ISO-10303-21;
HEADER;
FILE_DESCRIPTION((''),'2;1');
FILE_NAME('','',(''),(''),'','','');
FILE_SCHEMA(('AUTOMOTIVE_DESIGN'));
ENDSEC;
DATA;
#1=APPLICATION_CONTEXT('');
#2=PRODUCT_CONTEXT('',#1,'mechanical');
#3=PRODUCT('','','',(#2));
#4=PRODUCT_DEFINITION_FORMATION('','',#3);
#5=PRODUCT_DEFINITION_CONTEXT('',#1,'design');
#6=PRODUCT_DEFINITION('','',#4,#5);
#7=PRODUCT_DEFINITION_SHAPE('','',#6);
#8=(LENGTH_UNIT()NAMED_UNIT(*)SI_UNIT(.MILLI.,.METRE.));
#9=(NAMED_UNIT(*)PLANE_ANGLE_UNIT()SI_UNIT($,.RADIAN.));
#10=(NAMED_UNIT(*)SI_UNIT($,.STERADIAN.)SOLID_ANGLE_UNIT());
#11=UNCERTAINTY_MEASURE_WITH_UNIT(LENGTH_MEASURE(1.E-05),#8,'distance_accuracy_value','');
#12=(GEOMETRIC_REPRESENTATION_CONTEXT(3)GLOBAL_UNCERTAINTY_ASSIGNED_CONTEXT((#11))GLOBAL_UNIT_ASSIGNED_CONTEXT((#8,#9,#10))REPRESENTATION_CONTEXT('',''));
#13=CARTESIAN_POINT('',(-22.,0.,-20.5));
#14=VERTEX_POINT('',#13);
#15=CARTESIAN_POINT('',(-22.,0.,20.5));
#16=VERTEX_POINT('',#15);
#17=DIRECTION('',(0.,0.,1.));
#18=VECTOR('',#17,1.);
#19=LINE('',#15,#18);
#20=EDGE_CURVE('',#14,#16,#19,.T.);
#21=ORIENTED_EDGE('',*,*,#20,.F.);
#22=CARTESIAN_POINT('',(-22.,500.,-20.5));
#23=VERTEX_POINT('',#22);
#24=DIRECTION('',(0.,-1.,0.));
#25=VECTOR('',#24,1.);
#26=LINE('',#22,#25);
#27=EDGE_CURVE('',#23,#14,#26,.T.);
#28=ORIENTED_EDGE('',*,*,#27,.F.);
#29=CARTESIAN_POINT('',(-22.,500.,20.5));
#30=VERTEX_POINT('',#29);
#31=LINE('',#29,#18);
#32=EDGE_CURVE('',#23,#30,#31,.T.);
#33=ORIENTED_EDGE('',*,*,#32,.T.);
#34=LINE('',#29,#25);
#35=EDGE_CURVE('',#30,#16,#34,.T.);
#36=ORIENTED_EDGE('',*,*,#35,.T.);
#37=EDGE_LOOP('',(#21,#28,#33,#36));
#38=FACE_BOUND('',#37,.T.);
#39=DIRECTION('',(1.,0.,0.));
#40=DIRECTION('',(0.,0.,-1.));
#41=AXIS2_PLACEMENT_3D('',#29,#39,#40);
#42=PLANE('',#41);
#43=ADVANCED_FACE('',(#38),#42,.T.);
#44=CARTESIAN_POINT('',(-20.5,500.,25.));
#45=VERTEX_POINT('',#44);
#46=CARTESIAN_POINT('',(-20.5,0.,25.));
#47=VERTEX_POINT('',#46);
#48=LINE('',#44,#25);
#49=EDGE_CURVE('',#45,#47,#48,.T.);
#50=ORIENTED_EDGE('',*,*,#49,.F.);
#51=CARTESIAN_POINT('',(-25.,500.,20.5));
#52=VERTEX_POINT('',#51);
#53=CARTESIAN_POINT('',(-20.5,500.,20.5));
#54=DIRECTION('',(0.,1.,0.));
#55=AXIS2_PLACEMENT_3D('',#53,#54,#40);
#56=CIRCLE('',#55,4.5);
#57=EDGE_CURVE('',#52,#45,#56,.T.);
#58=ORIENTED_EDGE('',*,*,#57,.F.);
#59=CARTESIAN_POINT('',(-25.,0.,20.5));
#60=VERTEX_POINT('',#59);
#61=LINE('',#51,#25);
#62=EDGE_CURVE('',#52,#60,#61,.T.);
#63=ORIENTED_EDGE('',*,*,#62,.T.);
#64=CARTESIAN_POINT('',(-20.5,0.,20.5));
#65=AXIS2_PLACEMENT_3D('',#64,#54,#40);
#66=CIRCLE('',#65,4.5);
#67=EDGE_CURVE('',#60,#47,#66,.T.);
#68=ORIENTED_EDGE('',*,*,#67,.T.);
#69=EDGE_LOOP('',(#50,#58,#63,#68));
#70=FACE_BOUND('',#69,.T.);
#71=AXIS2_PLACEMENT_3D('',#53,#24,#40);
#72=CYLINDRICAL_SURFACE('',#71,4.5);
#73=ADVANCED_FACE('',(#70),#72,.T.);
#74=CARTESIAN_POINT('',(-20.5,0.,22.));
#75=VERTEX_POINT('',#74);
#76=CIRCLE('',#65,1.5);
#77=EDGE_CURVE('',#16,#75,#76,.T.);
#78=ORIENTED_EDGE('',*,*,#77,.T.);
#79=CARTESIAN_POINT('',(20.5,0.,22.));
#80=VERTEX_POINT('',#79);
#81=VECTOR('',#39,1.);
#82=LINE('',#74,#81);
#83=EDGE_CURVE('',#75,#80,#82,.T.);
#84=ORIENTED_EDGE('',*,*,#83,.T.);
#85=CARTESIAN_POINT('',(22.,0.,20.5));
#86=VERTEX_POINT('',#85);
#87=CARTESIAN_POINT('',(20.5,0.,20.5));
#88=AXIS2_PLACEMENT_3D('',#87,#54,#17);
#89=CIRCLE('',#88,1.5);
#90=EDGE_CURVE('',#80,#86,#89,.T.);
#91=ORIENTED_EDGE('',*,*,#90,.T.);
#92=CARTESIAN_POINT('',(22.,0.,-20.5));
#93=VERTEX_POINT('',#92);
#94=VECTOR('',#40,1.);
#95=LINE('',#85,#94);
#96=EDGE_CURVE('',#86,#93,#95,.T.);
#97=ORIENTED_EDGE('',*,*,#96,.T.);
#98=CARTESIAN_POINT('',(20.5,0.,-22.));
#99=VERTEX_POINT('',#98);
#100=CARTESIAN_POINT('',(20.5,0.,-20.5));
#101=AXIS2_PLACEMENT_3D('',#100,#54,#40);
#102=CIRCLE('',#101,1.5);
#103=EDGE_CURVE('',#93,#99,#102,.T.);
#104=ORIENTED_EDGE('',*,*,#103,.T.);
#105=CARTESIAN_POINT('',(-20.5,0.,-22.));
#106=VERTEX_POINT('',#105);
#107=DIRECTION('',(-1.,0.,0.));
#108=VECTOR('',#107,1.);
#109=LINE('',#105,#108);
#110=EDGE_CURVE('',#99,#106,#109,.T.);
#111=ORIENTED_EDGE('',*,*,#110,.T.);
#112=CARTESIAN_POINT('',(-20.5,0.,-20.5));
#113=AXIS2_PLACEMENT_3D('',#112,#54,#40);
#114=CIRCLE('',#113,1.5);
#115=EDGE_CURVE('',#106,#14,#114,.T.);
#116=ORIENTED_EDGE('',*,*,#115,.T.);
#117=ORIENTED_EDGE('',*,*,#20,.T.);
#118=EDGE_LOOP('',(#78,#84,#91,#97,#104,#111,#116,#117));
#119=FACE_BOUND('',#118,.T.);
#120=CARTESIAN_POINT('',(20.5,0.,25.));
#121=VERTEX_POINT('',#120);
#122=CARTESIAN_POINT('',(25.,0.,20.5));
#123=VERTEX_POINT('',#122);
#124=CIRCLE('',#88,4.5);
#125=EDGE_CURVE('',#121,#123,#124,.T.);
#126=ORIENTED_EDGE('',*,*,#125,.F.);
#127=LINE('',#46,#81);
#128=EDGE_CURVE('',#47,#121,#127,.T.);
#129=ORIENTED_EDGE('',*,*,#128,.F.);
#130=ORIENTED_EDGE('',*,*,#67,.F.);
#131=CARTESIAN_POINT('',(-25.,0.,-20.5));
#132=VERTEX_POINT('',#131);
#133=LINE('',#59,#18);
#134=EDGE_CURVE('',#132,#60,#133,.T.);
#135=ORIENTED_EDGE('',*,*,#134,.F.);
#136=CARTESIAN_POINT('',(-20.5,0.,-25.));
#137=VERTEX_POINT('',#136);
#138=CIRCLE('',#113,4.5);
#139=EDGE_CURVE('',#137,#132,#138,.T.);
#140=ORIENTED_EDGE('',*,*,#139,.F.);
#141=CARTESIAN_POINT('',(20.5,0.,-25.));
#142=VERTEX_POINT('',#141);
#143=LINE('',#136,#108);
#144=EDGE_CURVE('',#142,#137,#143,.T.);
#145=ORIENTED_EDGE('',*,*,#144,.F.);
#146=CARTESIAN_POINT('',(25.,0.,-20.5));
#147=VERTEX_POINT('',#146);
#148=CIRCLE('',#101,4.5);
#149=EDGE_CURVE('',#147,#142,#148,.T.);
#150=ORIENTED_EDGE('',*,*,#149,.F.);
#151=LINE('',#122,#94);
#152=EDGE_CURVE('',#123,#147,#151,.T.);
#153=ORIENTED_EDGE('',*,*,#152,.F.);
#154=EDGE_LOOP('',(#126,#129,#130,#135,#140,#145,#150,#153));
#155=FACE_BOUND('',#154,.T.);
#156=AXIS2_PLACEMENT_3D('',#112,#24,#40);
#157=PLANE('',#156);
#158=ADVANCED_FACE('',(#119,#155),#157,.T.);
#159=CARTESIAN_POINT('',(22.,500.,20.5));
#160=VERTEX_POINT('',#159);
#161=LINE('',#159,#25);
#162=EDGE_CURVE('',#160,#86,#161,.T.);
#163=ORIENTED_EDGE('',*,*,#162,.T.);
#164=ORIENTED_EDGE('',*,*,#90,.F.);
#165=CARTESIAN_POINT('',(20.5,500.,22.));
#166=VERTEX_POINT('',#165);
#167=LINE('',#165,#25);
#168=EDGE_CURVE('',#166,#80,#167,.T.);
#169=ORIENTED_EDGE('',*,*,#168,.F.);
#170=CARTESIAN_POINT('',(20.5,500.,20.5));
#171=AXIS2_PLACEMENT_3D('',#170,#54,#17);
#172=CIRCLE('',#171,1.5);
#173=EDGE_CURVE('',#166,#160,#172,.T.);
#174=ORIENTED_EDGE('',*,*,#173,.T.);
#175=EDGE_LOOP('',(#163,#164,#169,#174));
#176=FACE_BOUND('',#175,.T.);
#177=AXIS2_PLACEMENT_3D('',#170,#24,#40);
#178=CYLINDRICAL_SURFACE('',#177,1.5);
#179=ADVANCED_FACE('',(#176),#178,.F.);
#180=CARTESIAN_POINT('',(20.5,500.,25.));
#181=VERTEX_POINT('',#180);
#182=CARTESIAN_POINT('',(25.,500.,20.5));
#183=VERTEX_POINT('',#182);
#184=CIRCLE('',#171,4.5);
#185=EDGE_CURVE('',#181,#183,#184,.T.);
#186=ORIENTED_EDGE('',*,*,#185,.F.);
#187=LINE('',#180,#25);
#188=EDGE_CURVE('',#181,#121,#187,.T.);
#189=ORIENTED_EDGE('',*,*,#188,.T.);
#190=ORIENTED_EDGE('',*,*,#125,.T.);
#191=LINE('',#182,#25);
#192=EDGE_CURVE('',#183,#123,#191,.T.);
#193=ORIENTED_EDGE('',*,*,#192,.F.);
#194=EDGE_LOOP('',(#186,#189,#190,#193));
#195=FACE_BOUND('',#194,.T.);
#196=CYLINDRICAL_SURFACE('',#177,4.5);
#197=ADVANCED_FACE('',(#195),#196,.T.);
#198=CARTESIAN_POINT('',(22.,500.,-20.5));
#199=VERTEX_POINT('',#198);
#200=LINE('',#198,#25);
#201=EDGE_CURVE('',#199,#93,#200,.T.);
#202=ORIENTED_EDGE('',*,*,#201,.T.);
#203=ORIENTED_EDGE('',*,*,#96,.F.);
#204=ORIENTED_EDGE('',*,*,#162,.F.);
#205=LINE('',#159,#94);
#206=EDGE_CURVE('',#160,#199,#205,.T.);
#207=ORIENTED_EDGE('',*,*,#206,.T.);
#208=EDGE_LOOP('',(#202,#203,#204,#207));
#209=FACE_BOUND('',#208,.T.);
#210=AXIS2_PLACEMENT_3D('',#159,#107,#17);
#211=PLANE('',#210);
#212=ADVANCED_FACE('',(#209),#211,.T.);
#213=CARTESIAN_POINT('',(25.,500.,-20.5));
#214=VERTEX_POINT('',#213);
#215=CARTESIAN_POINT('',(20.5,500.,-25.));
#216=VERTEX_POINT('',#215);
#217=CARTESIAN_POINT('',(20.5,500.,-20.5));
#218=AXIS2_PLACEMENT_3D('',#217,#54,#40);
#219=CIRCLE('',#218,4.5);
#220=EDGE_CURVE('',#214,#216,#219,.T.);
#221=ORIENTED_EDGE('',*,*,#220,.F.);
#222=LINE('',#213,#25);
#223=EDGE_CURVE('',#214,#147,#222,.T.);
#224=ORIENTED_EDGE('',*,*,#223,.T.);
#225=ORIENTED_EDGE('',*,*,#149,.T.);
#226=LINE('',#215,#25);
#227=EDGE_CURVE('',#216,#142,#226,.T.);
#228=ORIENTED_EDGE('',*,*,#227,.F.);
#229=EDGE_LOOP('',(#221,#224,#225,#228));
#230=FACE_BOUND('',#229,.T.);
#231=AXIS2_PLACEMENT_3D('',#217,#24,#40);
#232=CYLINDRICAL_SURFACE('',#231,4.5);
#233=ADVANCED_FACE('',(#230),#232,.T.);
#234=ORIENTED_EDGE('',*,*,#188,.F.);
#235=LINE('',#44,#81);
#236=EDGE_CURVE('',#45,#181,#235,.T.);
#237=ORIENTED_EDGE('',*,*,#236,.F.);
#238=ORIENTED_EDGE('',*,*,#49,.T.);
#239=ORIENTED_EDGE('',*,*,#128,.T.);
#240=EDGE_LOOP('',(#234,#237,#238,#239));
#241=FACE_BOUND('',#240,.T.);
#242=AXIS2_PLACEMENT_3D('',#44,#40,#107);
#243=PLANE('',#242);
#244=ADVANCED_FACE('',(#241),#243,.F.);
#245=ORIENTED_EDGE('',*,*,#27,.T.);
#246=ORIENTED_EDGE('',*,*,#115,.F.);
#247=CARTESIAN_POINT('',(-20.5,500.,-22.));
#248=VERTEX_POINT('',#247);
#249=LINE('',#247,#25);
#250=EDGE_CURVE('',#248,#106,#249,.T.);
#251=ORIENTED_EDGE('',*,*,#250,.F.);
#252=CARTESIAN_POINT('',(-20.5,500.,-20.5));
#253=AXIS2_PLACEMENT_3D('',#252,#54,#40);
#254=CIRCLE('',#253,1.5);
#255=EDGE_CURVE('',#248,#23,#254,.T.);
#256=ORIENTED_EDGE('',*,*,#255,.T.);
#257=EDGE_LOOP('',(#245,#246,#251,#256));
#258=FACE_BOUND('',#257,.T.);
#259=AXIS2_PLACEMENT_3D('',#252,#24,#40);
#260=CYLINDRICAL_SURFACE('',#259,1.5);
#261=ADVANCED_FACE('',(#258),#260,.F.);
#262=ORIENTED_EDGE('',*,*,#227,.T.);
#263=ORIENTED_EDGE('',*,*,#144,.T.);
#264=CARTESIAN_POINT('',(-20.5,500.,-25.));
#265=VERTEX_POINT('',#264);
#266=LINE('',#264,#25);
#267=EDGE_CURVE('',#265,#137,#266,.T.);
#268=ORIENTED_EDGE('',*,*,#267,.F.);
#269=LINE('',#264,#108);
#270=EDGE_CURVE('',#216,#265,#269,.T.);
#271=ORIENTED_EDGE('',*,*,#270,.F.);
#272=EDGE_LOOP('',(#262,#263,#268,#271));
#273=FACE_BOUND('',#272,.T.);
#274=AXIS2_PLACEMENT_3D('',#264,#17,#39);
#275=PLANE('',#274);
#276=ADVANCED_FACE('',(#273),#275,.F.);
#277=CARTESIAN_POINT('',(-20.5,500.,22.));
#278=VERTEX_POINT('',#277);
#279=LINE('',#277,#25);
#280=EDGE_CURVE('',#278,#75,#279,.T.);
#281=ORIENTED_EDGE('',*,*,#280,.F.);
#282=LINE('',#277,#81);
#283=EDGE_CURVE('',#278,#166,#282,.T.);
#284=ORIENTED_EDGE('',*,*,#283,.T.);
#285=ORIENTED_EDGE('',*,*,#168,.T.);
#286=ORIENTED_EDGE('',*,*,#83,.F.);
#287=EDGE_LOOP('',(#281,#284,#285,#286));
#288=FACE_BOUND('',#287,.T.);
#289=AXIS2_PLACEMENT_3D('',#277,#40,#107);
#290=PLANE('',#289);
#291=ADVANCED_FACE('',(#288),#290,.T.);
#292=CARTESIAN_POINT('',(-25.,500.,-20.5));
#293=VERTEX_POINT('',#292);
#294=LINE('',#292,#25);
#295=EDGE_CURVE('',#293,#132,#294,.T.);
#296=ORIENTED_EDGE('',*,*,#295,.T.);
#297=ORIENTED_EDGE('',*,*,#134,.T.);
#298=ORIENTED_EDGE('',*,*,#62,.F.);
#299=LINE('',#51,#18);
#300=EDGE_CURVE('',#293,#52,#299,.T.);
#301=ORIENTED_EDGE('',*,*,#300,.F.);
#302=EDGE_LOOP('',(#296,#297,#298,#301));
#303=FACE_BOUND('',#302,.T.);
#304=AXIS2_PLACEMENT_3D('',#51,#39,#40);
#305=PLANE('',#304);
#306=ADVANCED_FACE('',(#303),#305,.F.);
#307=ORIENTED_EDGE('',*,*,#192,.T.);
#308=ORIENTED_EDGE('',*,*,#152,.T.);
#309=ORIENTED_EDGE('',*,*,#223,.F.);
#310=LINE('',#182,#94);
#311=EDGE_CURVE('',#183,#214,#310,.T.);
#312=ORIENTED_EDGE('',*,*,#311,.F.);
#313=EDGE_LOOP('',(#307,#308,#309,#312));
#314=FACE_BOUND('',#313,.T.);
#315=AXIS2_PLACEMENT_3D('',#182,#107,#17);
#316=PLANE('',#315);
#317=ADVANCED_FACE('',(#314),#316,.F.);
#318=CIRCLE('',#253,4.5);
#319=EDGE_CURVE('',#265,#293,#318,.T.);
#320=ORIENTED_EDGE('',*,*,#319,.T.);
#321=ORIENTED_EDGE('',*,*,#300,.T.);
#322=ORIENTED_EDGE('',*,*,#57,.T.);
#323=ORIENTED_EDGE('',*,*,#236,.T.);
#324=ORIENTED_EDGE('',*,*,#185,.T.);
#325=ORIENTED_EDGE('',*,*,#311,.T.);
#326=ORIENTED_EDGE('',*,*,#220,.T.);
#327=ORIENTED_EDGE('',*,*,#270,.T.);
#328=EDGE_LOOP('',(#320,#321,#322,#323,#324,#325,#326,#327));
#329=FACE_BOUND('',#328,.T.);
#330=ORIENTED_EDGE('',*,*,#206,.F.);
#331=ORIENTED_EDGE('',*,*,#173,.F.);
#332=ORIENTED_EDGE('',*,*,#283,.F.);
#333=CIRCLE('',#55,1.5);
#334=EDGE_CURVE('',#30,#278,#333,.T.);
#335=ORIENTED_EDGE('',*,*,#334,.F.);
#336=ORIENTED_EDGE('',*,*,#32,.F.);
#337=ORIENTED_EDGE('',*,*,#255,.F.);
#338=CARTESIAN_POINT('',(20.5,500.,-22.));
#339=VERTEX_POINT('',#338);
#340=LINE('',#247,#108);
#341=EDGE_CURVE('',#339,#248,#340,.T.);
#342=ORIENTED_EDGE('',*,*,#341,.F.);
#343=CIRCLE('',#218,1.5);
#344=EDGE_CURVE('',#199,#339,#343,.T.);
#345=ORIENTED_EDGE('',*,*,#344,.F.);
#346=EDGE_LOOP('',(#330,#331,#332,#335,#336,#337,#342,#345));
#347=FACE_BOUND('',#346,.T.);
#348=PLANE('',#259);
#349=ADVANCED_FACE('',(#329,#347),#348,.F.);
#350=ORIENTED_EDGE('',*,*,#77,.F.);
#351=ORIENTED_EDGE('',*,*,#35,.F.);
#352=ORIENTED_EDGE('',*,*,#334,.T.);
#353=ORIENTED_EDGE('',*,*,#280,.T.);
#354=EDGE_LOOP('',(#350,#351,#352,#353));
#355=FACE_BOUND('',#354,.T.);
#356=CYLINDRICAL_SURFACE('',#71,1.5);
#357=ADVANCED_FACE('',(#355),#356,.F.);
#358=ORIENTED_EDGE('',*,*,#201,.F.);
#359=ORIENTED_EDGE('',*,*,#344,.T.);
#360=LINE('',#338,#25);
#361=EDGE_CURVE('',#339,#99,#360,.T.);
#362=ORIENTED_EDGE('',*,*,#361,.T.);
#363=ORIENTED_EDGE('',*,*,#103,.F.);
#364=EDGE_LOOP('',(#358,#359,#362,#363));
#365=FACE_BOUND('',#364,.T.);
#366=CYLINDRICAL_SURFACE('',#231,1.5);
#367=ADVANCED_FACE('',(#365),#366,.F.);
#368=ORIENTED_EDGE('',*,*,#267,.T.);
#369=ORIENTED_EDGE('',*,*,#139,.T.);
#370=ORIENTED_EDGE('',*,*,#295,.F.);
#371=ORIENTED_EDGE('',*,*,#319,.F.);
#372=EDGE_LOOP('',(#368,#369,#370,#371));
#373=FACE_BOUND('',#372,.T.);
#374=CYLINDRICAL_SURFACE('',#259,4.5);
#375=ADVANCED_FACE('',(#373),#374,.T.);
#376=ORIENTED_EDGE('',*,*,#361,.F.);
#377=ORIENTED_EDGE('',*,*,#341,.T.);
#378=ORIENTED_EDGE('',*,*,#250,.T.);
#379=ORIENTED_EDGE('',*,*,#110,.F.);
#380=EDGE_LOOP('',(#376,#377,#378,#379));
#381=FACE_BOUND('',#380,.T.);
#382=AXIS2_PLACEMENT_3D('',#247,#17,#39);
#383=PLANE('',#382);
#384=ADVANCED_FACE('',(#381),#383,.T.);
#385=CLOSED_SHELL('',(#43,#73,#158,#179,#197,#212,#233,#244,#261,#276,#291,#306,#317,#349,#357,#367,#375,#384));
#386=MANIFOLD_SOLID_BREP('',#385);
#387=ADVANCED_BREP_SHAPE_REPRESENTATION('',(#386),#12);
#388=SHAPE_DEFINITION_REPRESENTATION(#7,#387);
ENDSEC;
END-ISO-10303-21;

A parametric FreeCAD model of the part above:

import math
import FreeCAD as App
import Part
import Sketcher

V = App.Vector
Q = App.Units.Quantity

doc = App.newDocument("Part")
body = doc.addObject("PartDesign::Body", "Body")

sketch1 = doc.addObject("Sketcher::SketchObject", "Sketch")
body.addObject(sketch1)
sketch1.AttachmentSupport = (doc.XZ_Plane, [""])
sketch1.MapMode = "FlatFace"
sketch1.addGeometry([
    Part.LineSegment(V(-20.5, 25, 0), V(20.5, 25, 0)),
    Part.ArcOfCircle(Part.Circle(V(20.5, 20.5, 0), V(0, 0, 1), 4.5), math.radians(0), math.radians(90)),
    Part.LineSegment(V(25, 20.5, 0), V(25, -20.5, 0)),
    Part.ArcOfCircle(Part.Circle(V(20.5, -20.5, 0), V(0, 0, 1), 4.5), math.radians(-90), math.radians(0)),
    Part.LineSegment(V(20.5, -25, 0), V(-20.5, -25, 0)),
    Part.ArcOfCircle(Part.Circle(V(-20.5, -20.5, 0), V(0, 0, 1), 4.5), math.radians(-180), math.radians(-90)),
    Part.LineSegment(V(-25, -20.5, 0), V(-25, 20.5, 0)),
    Part.ArcOfCircle(Part.Circle(V(-20.5, 20.5, 0), V(0, 0, 1), 4.5), math.radians(90), math.radians(180)),
    Part.LineSegment(V(20.5, 22, 0), V(-20.5, 22, 0)),
    Part.ArcOfCircle(Part.Circle(V(-20.5, 20.5, 0), V(0, 0, 1), 1.5), math.radians(90), math.radians(180)),
    Part.LineSegment(V(-22, 20.5, 0), V(-22, -20.5, 0)),
    Part.ArcOfCircle(Part.Circle(V(-20.5, -20.5, 0), V(0, 0, 1), 1.5), math.radians(180), math.radians(270)),
    Part.LineSegment(V(-20.5, -22, 0), V(20.5, -22, 0)),
    Part.ArcOfCircle(Part.Circle(V(20.5, -20.5, 0), V(0, 0, 1), 1.5), math.radians(-90), math.radians(0)),
    Part.LineSegment(V(22, -20.5, 0), V(22, 20.5, 0)),
    Part.ArcOfCircle(Part.Circle(V(20.5, 20.5, 0), V(0, 0, 1), 1.5), math.radians(0), math.radians(90)),
], False)
sketch1.addConstraint([
    Sketcher.Constraint("Tangent", 0, 2, 1, 2),
    Sketcher.Constraint("Tangent", 1, 1, 2, 1),
    Sketcher.Constraint("Tangent", 2, 2, 3, 2),
    Sketcher.Constraint("Tangent", 3, 1, 4, 1),
    Sketcher.Constraint("Tangent", 4, 2, 5, 2),
    Sketcher.Constraint("Tangent", 5, 1, 6, 1),
    Sketcher.Constraint("Tangent", 6, 2, 7, 2),
    Sketcher.Constraint("Tangent", 7, 1, 0, 1),
    Sketcher.Constraint("Tangent", 8, 2, 9, 1),
    Sketcher.Constraint("Tangent", 9, 2, 10, 1),
    Sketcher.Constraint("Tangent", 10, 2, 11, 1),
    Sketcher.Constraint("Tangent", 11, 2, 12, 1),
    Sketcher.Constraint("Tangent", 12, 2, 13, 1),
    Sketcher.Constraint("Tangent", 13, 2, 14, 1),
    Sketcher.Constraint("Tangent", 14, 2, 15, 1),
    Sketcher.Constraint("Tangent", 15, 2, 8, 1),
    Sketcher.Constraint("Horizontal", 0),
    Sketcher.Constraint("Vertical", 2),
    Sketcher.Constraint("Horizontal", 4),
    Sketcher.Constraint("Vertical", 6),
    Sketcher.Constraint("Horizontal", 8),
    Sketcher.Constraint("Vertical", 10),
    Sketcher.Constraint("Horizontal", 12),
    Sketcher.Constraint("Vertical", 14),
    Sketcher.Constraint("Coincident", 9, 3, 7, 3),
    Sketcher.Constraint("Coincident", 11, 3, 5, 3),
    Sketcher.Constraint("Coincident", 13, 3, 3, 3),
    Sketcher.Constraint("Equal", 1, 3),
    Sketcher.Constraint("Equal", 3, 5),
    Sketcher.Constraint("Equal", 5, 7),
    Sketcher.Constraint("Equal", 13, 15),
    Sketcher.Constraint("Symmetric", 1, 3, 5, 3, -1, 1),
    Sketcher.Constraint("Equal", 12, 2),
    Sketcher.Constraint("Radius", 1, Q("4.5 mm")),
    Sketcher.Constraint("Radius", 9, Q("1.5 mm")),
    Sketcher.Constraint("DistanceX", 0, 1, 0, 2, Q("41 mm")),
])
pad1 = doc.addObject("PartDesign::Pad", "Pad")
body.addObject(pad1)
pad1.Profile = sketch1
pad1.Length = 500
pad1.Reversed = True

doc.recompute()
